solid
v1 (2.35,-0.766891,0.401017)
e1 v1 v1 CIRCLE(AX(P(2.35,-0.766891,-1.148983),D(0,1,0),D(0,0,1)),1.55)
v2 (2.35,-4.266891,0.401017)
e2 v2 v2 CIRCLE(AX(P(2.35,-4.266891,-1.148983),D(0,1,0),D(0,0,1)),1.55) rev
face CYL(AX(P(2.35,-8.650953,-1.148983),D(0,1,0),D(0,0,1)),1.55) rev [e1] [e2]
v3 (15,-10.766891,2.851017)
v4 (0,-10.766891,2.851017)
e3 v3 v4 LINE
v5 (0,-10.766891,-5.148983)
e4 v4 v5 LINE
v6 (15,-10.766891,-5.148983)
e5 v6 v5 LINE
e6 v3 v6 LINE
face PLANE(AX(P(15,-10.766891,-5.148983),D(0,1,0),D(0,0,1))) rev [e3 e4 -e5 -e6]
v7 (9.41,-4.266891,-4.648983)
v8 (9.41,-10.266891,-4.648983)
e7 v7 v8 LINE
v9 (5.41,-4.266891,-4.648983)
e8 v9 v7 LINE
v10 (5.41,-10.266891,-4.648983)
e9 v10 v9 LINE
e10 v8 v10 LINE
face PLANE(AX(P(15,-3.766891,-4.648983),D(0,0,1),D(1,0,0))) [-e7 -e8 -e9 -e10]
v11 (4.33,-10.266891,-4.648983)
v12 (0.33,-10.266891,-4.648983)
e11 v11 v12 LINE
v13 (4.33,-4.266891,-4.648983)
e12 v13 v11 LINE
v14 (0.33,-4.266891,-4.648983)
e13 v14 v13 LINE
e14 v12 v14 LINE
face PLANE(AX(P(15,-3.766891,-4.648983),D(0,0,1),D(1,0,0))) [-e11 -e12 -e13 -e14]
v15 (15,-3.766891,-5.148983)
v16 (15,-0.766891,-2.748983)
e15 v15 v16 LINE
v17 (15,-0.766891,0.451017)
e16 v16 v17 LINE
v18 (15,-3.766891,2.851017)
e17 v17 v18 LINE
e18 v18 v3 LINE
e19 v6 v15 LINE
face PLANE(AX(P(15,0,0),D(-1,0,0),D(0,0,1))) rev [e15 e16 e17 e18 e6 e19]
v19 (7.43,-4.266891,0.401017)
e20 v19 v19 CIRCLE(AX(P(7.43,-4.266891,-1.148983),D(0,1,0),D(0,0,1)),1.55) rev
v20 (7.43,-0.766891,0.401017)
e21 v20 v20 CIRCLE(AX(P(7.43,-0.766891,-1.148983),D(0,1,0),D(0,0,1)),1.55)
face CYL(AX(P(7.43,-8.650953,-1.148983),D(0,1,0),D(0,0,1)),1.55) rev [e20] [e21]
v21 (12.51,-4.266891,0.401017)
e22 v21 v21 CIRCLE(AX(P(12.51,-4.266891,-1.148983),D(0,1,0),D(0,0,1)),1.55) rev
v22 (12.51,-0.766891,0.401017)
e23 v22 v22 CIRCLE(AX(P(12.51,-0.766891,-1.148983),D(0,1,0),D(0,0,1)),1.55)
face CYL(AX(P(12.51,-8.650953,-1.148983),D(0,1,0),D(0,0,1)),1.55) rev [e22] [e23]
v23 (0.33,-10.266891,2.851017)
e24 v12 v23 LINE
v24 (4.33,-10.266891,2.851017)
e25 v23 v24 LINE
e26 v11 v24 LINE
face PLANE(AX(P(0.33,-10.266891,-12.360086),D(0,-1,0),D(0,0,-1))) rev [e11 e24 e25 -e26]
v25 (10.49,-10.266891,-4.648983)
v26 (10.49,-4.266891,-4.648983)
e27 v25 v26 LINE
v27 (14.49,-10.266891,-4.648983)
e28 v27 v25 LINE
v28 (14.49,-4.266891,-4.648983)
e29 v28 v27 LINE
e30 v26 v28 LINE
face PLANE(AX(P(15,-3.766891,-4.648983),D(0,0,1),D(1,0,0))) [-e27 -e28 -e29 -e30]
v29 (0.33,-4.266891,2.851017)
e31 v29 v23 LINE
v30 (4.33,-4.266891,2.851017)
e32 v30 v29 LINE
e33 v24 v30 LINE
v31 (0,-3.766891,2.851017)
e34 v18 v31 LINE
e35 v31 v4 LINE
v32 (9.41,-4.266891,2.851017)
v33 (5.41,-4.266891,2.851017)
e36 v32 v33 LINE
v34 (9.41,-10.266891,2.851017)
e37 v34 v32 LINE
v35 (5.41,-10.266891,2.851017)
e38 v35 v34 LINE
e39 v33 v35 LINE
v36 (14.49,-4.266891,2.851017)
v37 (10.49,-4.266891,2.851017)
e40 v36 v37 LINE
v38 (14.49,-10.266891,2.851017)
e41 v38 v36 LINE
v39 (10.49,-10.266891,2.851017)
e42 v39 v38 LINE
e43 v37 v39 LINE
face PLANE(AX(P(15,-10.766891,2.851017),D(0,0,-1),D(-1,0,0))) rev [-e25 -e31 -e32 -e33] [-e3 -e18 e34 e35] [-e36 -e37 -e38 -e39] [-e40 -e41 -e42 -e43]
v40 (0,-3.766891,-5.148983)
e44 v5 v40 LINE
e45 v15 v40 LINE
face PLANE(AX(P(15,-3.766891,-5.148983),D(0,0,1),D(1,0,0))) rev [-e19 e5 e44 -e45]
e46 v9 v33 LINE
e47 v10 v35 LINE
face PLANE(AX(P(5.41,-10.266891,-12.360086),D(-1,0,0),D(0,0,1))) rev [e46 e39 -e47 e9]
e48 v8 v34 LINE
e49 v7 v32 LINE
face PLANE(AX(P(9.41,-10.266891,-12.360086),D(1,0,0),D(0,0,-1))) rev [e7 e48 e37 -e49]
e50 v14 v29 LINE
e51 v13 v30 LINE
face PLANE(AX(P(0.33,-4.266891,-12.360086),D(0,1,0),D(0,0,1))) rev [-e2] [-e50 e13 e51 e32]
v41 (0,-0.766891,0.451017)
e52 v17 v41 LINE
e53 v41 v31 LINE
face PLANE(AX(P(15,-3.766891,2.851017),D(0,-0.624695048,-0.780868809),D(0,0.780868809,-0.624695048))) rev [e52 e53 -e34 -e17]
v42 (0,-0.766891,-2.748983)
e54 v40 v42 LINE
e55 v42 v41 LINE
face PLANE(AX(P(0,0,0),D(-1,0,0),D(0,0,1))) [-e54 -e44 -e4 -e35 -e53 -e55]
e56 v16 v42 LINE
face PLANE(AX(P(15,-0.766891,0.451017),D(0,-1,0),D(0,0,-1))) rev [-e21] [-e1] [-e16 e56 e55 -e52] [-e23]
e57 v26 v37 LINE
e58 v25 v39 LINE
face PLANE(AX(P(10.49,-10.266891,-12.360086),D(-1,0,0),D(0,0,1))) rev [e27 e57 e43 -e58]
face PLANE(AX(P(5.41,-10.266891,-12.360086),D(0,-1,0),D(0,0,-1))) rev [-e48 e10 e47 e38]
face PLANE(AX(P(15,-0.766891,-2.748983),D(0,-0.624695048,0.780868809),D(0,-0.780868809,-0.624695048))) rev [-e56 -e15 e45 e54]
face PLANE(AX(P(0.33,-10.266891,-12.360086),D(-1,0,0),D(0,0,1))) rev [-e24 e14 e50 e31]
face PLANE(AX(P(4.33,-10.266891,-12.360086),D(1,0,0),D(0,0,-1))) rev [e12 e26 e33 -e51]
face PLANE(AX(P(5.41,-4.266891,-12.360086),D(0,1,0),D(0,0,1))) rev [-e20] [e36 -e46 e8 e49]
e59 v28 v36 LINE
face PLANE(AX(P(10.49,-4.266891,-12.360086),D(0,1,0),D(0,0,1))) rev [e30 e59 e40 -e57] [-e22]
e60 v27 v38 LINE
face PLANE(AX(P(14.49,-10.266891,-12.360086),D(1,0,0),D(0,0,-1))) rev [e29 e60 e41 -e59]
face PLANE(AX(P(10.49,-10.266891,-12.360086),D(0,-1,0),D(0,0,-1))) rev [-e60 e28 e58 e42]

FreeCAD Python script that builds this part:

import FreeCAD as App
import Part
import Sketcher
from FreeCAD import Vector
Q = App.Units.Quantity


def add_polygon(sketch, points):
    """Adds a closed chain of lines whose ends are joined by coincident constraints."""
    first, n = sketch.GeometryCount, len(points)
    for a, b in zip(points, points[1:] + points[:1]):
        sketch.addGeometry(Part.LineSegment(App.Vector(*a, 0), App.Vector(*b, 0)), False)
    for i in range(n):
        sketch.addConstraint(Sketcher.Constraint("Coincident", first + i, 2, first + (i + 1) % n, 1))

doc = App.newDocument("Part")
body = doc.addObject("PartDesign::Body", "Body")

# Sketch on YZ plane
sketch1 = body.newObject("Sketcher::SketchObject", "Sketch")
sketch1.AttachmentSupport = (doc.getObject("YZ_Plane"), [""])
sketch1.MapMode = "FlatFace"
add_polygon(sketch1, [(-0.766891, -2.748983), (-0.766891, 0.451017), (-3.766891, 2.851017), (-10.766891, 2.851017), (-10.766891, -5.148983), (-3.766891, -5.148983)])  # lines 0-5
sketch1.addConstraint(Sketcher.Constraint("Vertical", 0))
sketch1.addConstraint(Sketcher.Constraint("Horizontal", 2))
sketch1.addConstraint(Sketcher.Constraint("Vertical", 3))
sketch1.addConstraint(Sketcher.Constraint("Horizontal", 4))
sketch1.addConstraint(Sketcher.Constraint("Vertical", 1, 2, 4, 2))
sketch1.addConstraint(Sketcher.Constraint("Equal", 1, 5))
sketch1.addConstraint(Sketcher.Constraint("DistanceX", 2, 2, 2, 1, Q("7 mm")))
sketch1.addConstraint(Sketcher.Constraint("DistanceY", 3, 2, 3, 1, Q("8 mm")))
sketch1.addConstraint(Sketcher.Constraint("DistanceY", 0, 1, 0, 2, Q("3.2 mm")))
sketch1.addConstraint(Sketcher.Constraint("DistanceX", 1, 2, 0, 2, Q("3 mm")))
sketch1.addConstraint(Sketcher.Constraint("DistanceX", 0, 2, -1, 1, Q("0.766891 mm")))
sketch1.addConstraint(Sketcher.Constraint("DistanceY", -1, 1, 0, 2, Q("0.451017 mm")))
pad1 = body.newObject("PartDesign::Pad", "Pad")
pad1.Profile = sketch1
pad1.Length = 15

# Sketch on XY plane
sketch2 = body.newObject("Sketcher::SketchObject", "Sketch001")
sketch2.AttachmentSupport = (doc.getObject("XY_Plane"), [""])
sketch2.MapMode = "FlatFace"
sketch2.AttachmentOffset = App.Placement(Vector(0, 0, 2.851017), App.Rotation())
add_polygon(sketch2, [(0.33, -4.266891), (0.33, -10.266891), (4.33, -10.266891), (4.33, -4.266891)])  # lines 0-3
add_polygon(sketch2, [(5.41, -4.266891), (5.41, -10.266891), (9.41, -10.266891), (9.41, -4.266891)])  # lines 4-7
add_polygon(sketch2, [(10.49, -4.266891), (10.49, -10.266891), (14.49, -10.266891), (14.49, -4.266891)])  # lines 8-11
sketch2.addConstraint(Sketcher.Constraint("Vertical", 0))
sketch2.addConstraint(Sketcher.Constraint("Horizontal", 1))
sketch2.addConstraint(Sketcher.Constraint("Vertical", 2))
sketch2.addConstraint(Sketcher.Constraint("Horizontal", 3))
sketch2.addConstraint(Sketcher.Constraint("Vertical", 4))
sketch2.addConstraint(Sketcher.Constraint("Horizontal", 5))
sketch2.addConstraint(Sketcher.Constraint("Vertical", 6))
sketch2.addConstraint(Sketcher.Constraint("Horizontal", 7))
sketch2.addConstraint(Sketcher.Constraint("Vertical", 8))
sketch2.addConstraint(Sketcher.Constraint("Horizontal", 9))
sketch2.addConstraint(Sketcher.Constraint("Vertical", 10))
sketch2.addConstraint(Sketcher.Constraint("Horizontal", 11))
sketch2.addConstraint(Sketcher.Constraint("Horizontal", 1, 2, 4, 2))
sketch2.addConstraint(Sketcher.Constraint("Horizontal", 3, 2, 6, 2))
sketch2.addConstraint(Sketcher.Constraint("Horizontal", 5, 2, 8, 2))
sketch2.addConstraint(Sketcher.Constraint("Horizontal", 7, 2, 10, 2))
sketch2.addConstraint(Sketcher.Constraint("Equal", 3, 5))
sketch2.addConstraint(Sketcher.Constraint("Equal", 7, 9))
sketch2.addConstraint(Sketcher.Constraint("DistanceX", 1, 1, 1, 2, Q("4 mm")))
sketch2.addConstraint(Sketcher.Constraint("DistanceY", 0, 2, 0, 1, Q("6 mm")))
sketch2.addConstraint(Sketcher.Constraint("DistanceX", -1, 1, 0, 2, Q("0.33 mm")))
sketch2.addConstraint(Sketcher.Constraint("DistanceX", -1, 1, 4, 2, Q("5.41 mm")))
sketch2.addConstraint(Sketcher.Constraint("DistanceX", -1, 1, 8, 2, Q("10.49 mm")))
sketch2.addConstraint(Sketcher.Constraint("DistanceY", 0, 2, -1, 1, Q("10.266891 mm")))
pocket1 = body.newObject("PartDesign::Pocket", "Pocket")
pocket1.Profile = sketch2
pocket1.Length = 7.5

# Sketch on XZ plane
sketch3 = body.newObject("Sketcher::SketchObject", "Sketch002")
sketch3.AttachmentSupport = (doc.getObject("XZ_Plane"), [""])
sketch3.MapMode = "FlatFace"
sketch3.AttachmentOffset = App.Placement(Vector(0, 0, 0.766891), App.Rotation())
sketch3.addGeometry(Part.Circle(Vector(2.35, -1.148983, 0), Vector(0, 0, 1), 1.55), False)
sketch3.addGeometry(Part.Circle(Vector(7.43, -1.148983, 0), Vector(0, 0, 1), 1.55), False)
sketch3.addGeometry(Part.Circle(Vector(12.51, -1.148983, 0), Vector(0, 0, 1), 1.55), False)
sketch3.addConstraint(Sketcher.Constraint("Equal", 0, 1))
sketch3.addConstraint(Sketcher.Constraint("Equal", 1, 2))
sketch3.addConstraint(Sketcher.Constraint("Horizontal", 0, 3, 1, 3))
sketch3.addConstraint(Sketcher.Constraint("Horizontal", 1, 3, 2, 3))
sketch3.addConstraint(Sketcher.Constraint("Diameter", 0, Q("3.1 mm")))
sketch3.addConstraint(Sketcher.Constraint("DistanceX", -1, 1, 0, 3, Q("2.35 mm")))
sketch3.addConstraint(Sketcher.Constraint("DistanceX", -1, 1, 1, 3, Q("7.43 mm")))
sketch3.addConstraint(Sketcher.Constraint("DistanceX", -1, 1, 2, 3, Q("12.51 mm")))
sketch3.addConstraint(Sketcher.Constraint("DistanceY", 0, 3, -1, 1, Q("1.148983 mm")))
pocket2 = body.newObject("PartDesign::Pocket", "Pocket001")
pocket2.Profile = sketch3
pocket2.Length = 3.5
pocket2.Reversed = True

doc.recompute()
